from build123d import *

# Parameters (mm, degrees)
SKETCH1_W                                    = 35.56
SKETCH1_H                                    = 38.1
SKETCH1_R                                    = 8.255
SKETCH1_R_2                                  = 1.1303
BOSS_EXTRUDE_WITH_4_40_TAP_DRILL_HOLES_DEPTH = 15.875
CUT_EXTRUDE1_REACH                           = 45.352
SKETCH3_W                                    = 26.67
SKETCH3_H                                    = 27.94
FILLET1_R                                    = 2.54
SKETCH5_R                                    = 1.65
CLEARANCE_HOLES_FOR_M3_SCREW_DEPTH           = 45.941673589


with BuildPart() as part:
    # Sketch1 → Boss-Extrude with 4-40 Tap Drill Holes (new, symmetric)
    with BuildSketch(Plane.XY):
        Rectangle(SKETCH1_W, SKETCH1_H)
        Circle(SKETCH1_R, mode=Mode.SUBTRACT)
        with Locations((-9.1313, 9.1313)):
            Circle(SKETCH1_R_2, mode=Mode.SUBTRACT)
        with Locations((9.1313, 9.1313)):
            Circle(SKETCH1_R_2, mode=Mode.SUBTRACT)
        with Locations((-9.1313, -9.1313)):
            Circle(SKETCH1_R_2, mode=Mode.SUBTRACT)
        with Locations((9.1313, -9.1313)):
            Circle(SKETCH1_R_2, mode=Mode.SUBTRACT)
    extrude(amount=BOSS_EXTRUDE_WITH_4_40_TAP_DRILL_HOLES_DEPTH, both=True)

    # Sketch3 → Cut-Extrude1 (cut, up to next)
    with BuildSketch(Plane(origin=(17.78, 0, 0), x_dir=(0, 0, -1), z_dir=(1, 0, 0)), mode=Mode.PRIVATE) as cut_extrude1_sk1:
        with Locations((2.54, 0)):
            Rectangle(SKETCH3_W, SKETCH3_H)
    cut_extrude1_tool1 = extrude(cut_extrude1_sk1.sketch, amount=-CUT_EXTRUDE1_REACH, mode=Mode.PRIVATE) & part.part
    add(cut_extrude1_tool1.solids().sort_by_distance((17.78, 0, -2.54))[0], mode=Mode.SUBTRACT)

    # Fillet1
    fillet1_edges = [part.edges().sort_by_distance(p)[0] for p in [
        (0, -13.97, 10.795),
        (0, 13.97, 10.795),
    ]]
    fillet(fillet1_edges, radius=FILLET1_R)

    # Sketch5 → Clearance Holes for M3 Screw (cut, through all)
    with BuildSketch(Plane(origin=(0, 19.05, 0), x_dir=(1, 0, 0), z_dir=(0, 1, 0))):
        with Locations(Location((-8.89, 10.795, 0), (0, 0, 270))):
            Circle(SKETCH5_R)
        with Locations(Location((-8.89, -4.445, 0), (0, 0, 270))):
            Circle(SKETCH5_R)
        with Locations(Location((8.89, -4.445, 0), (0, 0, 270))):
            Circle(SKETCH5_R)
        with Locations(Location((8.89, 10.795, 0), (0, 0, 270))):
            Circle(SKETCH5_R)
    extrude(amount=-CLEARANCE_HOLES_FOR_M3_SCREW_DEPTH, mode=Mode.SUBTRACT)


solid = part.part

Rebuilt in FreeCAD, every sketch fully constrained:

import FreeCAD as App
import Part
import Sketcher
from FreeCAD import Vector
Q = App.Units.Quantity


def edges_at(feature, points):
    """Names of the edges that pass closest to the given points."""
    edges = feature.Shape.Edges
    near = lambda p: min(range(len(edges)), key=lambda i: edges[i].distToShape(Part.Vertex(*p))[0])
    return sorted({f"Edge{near(p) + 1}" for p in points})

doc = App.newDocument("Part")
body = doc.addObject("PartDesign::Body", "Body")

sketch1 = body.newObject("Sketcher::SketchObject", "Sketch")
sketch1.AttachmentSupport = (doc.getObject("XY_Plane"), [""])
sketch1.MapMode = "FlatFace"
sketch1.addGeometry(Part.LineSegment(Vector(-17.8, 19.1, 0), Vector(-17.8, -19.1, 0)), False)
sketch1.addGeometry(Part.LineSegment(Vector(-17.8, -19.1, 0), Vector(17.8, -19.1, 0)), False)
sketch1.addGeometry(Part.LineSegment(Vector(17.8, -19.1, 0), Vector(17.8, 19.1, 0)), False)
sketch1.addGeometry(Part.LineSegment(Vector(17.8, 19.1, 0), Vector(-17.8, 19.1, 0)), False)
sketch1.addGeometry(Part.Circle(Vector(-9.1, -9.1, 0), Vector(0, 0, 1), 1.1), False)
sketch1.addGeometry(Part.Circle(Vector(0, 0, 0), Vector(0, 0, 1), 8.3), False)
sketch1.addGeometry(Part.Circle(Vector(9.1, -9.1, 0), Vector(0, 0, 1), 1.1), False)
sketch1.addGeometry(Part.Circle(Vector(-9.1, 9.1, 0), Vector(0, 0, 1), 1.1), False)
sketch1.addGeometry(Part.Circle(Vector(9.1, 9.1, 0), Vector(0, 0, 1), 1.1), False)
sketch1.addConstraint(Sketcher.Constraint("Coincident", 0, 2, 1, 1))
sketch1.addConstraint(Sketcher.Constraint("Coincident", 1, 2, 2, 1))
sketch1.addConstraint(Sketcher.Constraint("Coincident", 2, 2, 3, 1))
sketch1.addConstraint(Sketcher.Constraint("Coincident", 3, 2, 0, 1))
sketch1.addConstraint(Sketcher.Constraint("Vertical", 0))
sketch1.addConstraint(Sketcher.Constraint("Horizontal", 1))
sketch1.addConstraint(Sketcher.Constraint("Vertical", 2))
sketch1.addConstraint(Sketcher.Constraint("Horizontal", 3))
sketch1.addConstraint(Sketcher.Constraint("Coincident", 5, 3, -1, 1))
sketch1.addConstraint(Sketcher.Constraint("Equal", 4, 6))
sketch1.addConstraint(Sketcher.Constraint("Equal", 6, 7))
sketch1.addConstraint(Sketcher.Constraint("Equal", 7, 8))
sketch1.addConstraint(Sketcher.Constraint("Symmetric", 6, 3, 7, 3, -1, 1))
sketch1.addConstraint(Sketcher.Constraint("Symmetric", 4, 3, 8, 3, -1, 1))
sketch1.addConstraint(Sketcher.Constraint("Symmetric", 0, 2, 2, 2, -1, 1))
sketch1.addConstraint(Sketcher.Constraint("Symmetric", 4, 3, 6, 3, -2))
sketch1.addConstraint(Sketcher.Constraint("Diameter", 5, Q("0.65 in")))
sketch1.addConstraint(Sketcher.Constraint("Diameter", 4, Q("0.089 in")))
sketch1.addConstraint(Sketcher.Constraint("DistanceX", 1, 1, 1, 2, Q("1.4 in")))
sketch1.addConstraint(Sketcher.Constraint("DistanceY", 0, 2, 0, 1, Q("1.5 in")))
sketch1.addConstraint(Sketcher.Constraint("DistanceX", 4, 3, 6, 3, Q("0.719 in")))
sketch1.addConstraint(Sketcher.Constraint("DistanceY", 4, 3, 7, 3, Q("0.719 in")))
pad1 = body.newObject("PartDesign::Pad", "Pad")
pad1.Profile = sketch1
pad1.Length = Q("1.25 in")
pad1.Midplane = True

sketch2 = body.newObject("Sketcher::SketchObject", "Sketch001")
sketch2.AttachmentSupport = (doc.getObject("YZ_Plane"), [""])
sketch2.MapMode = "FlatFace"
sketch2.AttachmentOffset = App.Placement(Vector(0, 0, 0.7 * 25.4), App.Rotation())
sketch2.addGeometry(Part.LineSegment(Vector(14, 11, 0), Vector(-14, 11, 0)), False)
sketch2.addGeometry(Part.LineSegment(Vector(-14, 11, 0), Vector(-14, -16, 0)), False)
sketch2.addGeometry(Part.LineSegment(Vector(-14, -16, 0), Vector(14, -16, 0)), False)
sketch2.addGeometry(Part.LineSegment(Vector(14, -16, 0), Vector(14, 11, 0)), False)
sketch2.addConstraint(Sketcher.Constraint("Coincident", 0, 2, 1, 1))
sketch2.addConstraint(Sketcher.Constraint("Coincident", 1, 2, 2, 1))
sketch2.addConstraint(Sketcher.Constraint("Coincident", 2, 2, 3, 1))
sketch2.addConstraint(Sketcher.Constraint("Coincident", 3, 2, 0, 1))
sketch2.addConstraint(Sketcher.Constraint("Horizontal", 0))
sketch2.addConstraint(Sketcher.Constraint("Vertical", 1))
sketch2.addConstraint(Sketcher.Constraint("Horizontal", 2))
sketch2.addConstraint(Sketcher.Constraint("Vertical", 3))
sketch2.addConstraint(Sketcher.Constraint("DistanceX", 0, 2, 0, 1, Q("1.1 in")))
sketch2.addConstraint(Sketcher.Constraint("DistanceY", 1, 2, 1, 1, Q("1.05 in")))
sketch2.addConstraint(Sketcher.Constraint("DistanceX", 0, 2, -1, 1, Q("0.55 in")))
sketch2.addConstraint(Sketcher.Constraint("DistanceY", -1, 1, 0, 2, Q("0.425 in")))
pocket1 = body.newObject("PartDesign::Pocket", "Pocket")
pocket1.Profile = sketch2
pocket1.Length = Q("1.4 in")
doc.recompute()

fillet = body.newObject("PartDesign::Fillet", "Fillet")
fillet.Base = (pocket1, edges_at(pocket1, [(0, -13.97, 10.795), (0, 13.97, 10.795)]))
fillet.Radius = Q("0.1 in")

sketch3 = body.newObject("Sketcher::SketchObject", "Sketch002")
sketch3.AttachmentSupport = (doc.getObject("XZ_Plane"), [""])
sketch3.MapMode = "FlatFace"
sketch3.AttachmentOffset = App.Placement(Vector(0, 0, -0.75 * 25.4), App.Rotation())
sketch3.addGeometry(Part.Circle(Vector(-8.9, -10.8, 0), Vector(0, 0, 1), 1.6), False)
sketch3.addGeometry(Part.Circle(Vector(-8.9, 4.4, 0), Vector(0, 0, 1), 1.6), False)
sketch3.addGeometry(Part.Circle(Vector(8.9, 4.4, 0), Vector(0, 0, 1), 1.6), False)
sketch3.addGeometry(Part.Circle(Vector(8.9, -10.8, 0), Vector(0, 0, 1), 1.6), False)
sketch3.addConstraint(Sketcher.Constraint("Equal", 0, 1))
sketch3.addConstraint(Sketcher.Constraint("Equal", 1, 2))
sketch3.addConstraint(Sketcher.Constraint("Equal", 2, 3))
sketch3.addConstraint(Sketcher.Constraint("Symmetric", 1, 3, 2, 3, -2))
sketch3.addConstraint(Sketcher.Constraint("Symmetric", 0, 3, 3, 3, -2))
sketch3.addConstraint(Sketcher.Constraint("Vertical", 0, 3, 1, 3))
sketch3.addConstraint(Sketcher.Constraint("DistanceY", 0, 3, 1, 3, Q("0.6 in")))
sketch3.addConstraint(Sketcher.Constraint("DistanceX", 1, 3, 2, 3, Q("0.7 in")))
sketch3.addConstraint(Sketcher.Constraint("Diameter", 0, 3.3))
sketch3.addConstraint(Sketcher.Constraint("DistanceY", 0, 3, -1, 1, Q("0.425 in")))
pocket2 = body.newObject("PartDesign::Pocket", "Pocket001")
pocket2.Profile = sketch3
pocket2.Type = "ThroughAll"
pocket2.Reversed = True

doc.recompute()
